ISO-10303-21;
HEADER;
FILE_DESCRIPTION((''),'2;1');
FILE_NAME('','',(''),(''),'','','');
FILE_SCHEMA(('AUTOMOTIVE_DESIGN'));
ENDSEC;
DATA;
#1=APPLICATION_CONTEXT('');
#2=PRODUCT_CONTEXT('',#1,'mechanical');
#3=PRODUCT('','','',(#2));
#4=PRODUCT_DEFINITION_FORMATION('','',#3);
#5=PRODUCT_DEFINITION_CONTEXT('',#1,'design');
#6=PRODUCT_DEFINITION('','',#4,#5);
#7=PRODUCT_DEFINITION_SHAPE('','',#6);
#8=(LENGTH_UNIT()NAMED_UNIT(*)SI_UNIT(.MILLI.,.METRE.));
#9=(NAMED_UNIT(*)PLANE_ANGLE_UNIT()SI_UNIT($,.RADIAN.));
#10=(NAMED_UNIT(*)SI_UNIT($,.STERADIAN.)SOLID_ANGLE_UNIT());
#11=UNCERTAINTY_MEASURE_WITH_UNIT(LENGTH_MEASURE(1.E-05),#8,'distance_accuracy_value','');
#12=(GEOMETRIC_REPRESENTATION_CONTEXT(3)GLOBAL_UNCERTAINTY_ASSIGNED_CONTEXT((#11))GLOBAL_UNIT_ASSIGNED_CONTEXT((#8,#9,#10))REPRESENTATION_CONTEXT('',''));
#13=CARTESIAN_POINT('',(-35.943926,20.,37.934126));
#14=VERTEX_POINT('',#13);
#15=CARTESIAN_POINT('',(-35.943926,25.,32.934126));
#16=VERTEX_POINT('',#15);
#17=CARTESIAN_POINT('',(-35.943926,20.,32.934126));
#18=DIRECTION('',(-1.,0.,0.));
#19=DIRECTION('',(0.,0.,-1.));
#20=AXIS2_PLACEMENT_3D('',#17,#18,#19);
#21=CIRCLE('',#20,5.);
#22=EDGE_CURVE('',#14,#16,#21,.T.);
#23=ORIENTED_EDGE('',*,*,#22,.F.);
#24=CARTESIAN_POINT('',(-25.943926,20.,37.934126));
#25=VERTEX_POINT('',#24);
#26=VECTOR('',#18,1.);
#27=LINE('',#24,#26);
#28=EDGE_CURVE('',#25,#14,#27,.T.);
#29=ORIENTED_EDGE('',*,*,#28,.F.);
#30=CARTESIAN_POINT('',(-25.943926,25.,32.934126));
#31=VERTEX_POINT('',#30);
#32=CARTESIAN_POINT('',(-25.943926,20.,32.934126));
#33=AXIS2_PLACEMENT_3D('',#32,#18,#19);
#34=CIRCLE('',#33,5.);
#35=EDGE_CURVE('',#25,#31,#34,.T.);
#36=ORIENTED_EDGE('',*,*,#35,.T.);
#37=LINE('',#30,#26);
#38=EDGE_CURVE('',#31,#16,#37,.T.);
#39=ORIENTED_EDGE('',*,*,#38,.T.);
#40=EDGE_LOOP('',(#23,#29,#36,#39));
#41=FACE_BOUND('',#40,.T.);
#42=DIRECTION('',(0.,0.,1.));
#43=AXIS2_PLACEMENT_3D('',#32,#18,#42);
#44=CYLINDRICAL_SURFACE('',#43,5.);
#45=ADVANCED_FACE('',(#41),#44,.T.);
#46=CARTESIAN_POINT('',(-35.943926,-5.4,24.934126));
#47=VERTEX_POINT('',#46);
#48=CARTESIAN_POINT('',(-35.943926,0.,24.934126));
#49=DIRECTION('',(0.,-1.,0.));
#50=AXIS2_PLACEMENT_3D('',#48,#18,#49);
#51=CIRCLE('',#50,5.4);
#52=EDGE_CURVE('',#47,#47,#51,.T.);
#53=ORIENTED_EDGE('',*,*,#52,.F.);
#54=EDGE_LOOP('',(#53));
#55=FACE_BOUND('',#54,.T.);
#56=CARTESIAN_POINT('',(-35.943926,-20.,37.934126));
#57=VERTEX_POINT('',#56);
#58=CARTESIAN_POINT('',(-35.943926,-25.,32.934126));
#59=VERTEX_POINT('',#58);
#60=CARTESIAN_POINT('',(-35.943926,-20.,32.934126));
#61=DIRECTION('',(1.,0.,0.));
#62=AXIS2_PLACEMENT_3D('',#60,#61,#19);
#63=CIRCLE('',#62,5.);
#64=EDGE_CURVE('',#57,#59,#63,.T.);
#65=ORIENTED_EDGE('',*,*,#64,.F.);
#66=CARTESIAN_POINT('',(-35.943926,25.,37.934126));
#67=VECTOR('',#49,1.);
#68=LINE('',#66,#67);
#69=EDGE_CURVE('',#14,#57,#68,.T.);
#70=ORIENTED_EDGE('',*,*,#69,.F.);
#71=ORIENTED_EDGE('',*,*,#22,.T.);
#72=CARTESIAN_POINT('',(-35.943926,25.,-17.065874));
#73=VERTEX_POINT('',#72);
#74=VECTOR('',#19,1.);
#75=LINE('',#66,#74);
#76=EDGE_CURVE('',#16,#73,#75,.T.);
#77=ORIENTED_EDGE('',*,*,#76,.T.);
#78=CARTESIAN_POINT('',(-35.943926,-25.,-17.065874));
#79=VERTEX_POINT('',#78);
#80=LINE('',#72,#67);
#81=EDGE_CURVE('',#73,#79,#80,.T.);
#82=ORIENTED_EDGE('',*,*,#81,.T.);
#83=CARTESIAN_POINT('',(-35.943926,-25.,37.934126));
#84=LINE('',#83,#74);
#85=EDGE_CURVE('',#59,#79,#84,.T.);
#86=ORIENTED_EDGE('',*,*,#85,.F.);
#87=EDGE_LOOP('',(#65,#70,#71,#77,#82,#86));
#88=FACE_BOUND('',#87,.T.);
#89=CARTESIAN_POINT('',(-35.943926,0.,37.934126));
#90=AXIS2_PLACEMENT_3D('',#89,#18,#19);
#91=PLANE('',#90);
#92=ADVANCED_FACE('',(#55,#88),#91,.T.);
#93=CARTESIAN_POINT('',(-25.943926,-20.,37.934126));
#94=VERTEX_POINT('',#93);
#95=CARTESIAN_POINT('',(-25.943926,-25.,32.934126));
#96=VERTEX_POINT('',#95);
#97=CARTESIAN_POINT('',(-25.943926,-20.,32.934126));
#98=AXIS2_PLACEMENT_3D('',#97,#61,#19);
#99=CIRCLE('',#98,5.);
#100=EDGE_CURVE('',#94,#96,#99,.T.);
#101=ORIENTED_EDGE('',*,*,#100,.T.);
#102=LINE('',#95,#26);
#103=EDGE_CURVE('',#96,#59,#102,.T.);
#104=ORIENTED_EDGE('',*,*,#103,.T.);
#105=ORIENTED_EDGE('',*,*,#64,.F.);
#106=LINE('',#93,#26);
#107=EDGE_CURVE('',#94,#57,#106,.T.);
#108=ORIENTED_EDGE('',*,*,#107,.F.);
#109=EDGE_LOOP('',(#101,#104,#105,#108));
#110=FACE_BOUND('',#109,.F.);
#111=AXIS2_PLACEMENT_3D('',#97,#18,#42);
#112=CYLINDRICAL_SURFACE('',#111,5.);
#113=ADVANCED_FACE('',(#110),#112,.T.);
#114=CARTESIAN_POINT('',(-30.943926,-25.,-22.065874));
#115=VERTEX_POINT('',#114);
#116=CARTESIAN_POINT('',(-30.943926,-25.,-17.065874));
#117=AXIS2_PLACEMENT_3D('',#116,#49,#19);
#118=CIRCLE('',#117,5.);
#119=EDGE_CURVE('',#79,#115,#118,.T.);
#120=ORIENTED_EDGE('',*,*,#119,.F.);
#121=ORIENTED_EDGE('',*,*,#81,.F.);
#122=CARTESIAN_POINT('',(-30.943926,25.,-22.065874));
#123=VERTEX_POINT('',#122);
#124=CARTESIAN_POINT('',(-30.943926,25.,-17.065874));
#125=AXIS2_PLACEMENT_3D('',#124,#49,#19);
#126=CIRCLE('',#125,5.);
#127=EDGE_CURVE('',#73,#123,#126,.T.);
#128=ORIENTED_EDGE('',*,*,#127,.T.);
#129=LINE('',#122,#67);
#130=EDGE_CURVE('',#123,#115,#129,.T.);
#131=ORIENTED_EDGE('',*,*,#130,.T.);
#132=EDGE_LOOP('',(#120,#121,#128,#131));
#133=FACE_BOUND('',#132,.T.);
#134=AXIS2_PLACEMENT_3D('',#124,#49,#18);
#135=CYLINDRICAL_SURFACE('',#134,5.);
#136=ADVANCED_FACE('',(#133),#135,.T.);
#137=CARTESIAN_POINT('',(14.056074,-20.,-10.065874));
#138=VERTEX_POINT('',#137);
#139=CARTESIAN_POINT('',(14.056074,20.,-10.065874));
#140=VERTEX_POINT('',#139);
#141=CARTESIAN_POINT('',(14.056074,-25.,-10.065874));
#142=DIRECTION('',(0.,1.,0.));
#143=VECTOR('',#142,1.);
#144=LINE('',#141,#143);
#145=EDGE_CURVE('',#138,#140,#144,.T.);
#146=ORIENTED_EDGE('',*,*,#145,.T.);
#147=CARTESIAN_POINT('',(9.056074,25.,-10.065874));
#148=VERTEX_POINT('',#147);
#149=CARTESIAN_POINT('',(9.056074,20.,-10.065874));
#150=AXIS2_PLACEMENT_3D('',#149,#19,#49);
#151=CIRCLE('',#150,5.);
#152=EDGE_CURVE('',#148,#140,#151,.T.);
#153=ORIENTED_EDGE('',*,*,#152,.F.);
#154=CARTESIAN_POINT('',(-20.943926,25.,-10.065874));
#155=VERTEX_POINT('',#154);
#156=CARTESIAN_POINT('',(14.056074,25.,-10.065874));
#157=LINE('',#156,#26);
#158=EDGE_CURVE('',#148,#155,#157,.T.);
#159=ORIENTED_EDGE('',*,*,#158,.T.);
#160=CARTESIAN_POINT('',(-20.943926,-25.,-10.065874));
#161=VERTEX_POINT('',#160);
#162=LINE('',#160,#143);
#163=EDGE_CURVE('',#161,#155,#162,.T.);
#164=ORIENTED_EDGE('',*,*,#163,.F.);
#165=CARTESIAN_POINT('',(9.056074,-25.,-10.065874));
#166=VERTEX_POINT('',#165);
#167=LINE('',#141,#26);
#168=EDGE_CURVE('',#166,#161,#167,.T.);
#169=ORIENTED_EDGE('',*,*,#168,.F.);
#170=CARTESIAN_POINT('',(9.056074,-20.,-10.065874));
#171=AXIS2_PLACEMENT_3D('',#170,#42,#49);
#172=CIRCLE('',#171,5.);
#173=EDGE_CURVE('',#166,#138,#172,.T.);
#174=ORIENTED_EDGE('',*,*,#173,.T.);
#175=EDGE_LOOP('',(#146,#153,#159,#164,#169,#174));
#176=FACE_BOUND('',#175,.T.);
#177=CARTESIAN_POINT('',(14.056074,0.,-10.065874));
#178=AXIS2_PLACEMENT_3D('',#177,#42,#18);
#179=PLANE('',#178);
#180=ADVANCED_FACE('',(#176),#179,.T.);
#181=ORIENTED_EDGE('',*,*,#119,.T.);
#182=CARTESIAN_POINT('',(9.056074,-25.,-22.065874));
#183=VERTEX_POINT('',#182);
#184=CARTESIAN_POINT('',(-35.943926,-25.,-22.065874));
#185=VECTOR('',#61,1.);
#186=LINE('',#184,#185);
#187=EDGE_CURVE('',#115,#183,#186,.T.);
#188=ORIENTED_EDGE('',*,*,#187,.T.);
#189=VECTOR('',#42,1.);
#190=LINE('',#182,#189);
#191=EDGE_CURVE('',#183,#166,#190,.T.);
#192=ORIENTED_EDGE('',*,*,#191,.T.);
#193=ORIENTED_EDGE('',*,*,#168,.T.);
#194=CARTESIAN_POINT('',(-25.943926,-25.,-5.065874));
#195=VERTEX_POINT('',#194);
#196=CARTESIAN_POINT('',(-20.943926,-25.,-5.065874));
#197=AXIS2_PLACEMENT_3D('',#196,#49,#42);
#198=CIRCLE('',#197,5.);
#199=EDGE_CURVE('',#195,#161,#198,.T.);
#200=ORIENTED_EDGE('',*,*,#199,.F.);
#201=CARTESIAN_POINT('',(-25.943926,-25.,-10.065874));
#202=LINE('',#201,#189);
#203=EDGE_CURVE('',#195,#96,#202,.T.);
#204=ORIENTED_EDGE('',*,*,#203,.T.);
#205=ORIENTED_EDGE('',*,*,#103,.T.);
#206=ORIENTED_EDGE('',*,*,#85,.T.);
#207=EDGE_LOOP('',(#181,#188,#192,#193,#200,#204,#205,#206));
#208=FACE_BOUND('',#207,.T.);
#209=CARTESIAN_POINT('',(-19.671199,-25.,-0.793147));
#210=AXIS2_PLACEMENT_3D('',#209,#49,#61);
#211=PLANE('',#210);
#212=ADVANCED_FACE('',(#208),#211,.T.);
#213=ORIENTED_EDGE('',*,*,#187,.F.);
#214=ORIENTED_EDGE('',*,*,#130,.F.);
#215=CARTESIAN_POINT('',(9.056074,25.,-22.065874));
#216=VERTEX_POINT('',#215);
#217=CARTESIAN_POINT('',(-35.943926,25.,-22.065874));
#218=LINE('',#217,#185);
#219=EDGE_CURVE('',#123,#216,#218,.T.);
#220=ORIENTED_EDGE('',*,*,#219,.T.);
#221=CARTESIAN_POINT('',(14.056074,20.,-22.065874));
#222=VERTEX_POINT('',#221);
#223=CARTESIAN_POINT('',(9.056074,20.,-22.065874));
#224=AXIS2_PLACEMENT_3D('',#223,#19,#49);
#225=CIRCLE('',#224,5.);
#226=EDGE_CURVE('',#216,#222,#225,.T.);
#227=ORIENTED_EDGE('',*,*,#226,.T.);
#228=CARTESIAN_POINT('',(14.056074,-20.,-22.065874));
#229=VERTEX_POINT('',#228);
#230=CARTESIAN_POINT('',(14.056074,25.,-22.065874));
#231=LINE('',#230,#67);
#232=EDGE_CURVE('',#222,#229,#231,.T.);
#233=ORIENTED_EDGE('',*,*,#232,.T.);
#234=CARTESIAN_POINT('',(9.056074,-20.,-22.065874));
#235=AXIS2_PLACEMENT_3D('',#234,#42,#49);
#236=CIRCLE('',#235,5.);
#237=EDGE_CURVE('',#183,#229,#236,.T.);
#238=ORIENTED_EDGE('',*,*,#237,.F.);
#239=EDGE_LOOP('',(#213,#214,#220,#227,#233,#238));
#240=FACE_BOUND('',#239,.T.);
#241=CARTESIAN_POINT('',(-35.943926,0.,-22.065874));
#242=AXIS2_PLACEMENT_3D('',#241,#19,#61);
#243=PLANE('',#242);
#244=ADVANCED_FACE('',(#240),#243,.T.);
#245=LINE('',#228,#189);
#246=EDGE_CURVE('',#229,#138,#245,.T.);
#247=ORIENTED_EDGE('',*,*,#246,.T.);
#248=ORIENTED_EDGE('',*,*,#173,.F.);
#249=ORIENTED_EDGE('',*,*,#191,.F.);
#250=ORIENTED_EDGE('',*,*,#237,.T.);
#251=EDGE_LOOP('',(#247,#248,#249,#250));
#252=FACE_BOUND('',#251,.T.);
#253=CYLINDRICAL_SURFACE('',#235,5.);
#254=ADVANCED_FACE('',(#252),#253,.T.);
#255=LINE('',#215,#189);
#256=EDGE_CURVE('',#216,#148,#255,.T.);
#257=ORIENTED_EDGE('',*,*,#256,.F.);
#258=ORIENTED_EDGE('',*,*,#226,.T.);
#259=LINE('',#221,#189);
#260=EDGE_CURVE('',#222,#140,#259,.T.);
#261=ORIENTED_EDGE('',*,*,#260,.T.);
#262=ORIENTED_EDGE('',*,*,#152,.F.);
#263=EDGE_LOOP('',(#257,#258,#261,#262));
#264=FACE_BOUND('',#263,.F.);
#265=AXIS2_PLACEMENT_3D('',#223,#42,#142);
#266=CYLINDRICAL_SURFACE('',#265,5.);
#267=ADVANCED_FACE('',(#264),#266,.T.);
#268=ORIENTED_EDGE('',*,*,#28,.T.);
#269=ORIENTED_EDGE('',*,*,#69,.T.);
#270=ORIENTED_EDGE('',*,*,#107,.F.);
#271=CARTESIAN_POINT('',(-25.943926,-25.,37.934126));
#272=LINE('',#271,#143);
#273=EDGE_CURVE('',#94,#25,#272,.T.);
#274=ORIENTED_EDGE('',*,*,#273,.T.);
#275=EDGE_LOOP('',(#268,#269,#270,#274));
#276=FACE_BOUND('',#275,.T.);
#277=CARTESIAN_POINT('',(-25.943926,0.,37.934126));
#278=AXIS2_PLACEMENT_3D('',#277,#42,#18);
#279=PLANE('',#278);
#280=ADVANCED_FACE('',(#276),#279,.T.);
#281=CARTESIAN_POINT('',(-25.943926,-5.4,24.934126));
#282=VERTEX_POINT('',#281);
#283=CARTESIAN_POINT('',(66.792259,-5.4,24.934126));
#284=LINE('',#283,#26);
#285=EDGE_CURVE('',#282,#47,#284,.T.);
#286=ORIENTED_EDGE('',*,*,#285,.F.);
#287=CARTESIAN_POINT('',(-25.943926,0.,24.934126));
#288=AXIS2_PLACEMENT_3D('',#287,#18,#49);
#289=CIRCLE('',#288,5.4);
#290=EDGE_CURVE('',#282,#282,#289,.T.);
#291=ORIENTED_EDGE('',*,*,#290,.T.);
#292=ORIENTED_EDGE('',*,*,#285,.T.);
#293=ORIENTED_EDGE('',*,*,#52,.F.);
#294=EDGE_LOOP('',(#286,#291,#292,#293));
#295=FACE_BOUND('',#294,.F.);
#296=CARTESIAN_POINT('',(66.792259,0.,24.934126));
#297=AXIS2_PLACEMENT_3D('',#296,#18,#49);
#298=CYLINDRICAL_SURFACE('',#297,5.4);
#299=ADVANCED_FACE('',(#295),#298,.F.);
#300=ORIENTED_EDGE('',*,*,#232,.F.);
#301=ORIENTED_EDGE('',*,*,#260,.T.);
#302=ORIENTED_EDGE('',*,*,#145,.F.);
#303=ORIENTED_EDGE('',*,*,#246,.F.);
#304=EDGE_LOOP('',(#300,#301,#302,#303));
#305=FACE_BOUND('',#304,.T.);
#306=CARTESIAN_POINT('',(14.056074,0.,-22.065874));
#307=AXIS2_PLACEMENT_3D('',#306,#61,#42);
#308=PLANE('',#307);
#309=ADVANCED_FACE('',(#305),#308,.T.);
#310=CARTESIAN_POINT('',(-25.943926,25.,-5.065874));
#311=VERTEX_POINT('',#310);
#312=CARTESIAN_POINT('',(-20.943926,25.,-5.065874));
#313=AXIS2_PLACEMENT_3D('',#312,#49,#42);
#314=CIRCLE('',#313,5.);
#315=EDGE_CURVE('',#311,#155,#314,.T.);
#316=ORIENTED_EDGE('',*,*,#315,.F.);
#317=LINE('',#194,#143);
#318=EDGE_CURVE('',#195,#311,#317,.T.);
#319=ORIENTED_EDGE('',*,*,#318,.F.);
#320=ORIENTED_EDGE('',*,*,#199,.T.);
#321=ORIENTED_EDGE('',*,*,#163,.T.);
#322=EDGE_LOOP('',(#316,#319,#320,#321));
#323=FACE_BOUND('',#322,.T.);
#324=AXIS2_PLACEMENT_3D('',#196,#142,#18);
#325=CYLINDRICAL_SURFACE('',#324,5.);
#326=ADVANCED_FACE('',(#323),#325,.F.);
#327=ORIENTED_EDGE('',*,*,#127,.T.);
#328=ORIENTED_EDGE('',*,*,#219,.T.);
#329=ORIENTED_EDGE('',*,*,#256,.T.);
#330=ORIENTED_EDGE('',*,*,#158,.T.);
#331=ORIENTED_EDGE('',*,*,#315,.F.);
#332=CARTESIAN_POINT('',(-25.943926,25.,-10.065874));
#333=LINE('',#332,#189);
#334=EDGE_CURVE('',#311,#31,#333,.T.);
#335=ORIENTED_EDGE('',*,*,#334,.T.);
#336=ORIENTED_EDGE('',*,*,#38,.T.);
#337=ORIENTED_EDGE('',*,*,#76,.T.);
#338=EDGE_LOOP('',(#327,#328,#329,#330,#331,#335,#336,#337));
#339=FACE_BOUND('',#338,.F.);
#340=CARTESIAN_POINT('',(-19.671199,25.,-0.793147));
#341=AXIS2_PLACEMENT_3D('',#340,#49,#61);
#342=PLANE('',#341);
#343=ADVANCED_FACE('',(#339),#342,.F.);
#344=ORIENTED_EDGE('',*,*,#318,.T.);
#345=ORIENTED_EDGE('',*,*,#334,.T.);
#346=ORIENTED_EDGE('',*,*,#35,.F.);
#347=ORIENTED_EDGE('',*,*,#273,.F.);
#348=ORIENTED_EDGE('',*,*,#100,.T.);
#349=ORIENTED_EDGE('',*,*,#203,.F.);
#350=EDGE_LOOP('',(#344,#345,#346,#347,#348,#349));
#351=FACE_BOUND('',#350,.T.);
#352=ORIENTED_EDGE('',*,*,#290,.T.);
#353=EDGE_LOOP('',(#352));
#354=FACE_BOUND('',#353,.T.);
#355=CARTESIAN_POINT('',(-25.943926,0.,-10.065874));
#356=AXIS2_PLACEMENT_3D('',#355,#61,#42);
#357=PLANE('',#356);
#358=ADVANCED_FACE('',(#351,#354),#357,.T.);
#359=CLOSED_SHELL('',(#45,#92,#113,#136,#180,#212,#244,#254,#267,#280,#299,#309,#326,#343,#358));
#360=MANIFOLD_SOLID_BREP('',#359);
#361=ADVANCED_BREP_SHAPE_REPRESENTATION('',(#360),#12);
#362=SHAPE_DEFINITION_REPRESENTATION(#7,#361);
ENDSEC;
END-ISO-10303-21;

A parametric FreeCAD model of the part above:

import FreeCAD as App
import Part
import Sketcher

V = App.Vector


def edges_at(feature, points):
    """Names of the edges that pass closest to the given points."""
    edges = feature.Shape.Edges
    near = lambda p: min(range(len(edges)), key=lambda i: edges[i].distToShape(Part.Vertex(*p))[0])
    return sorted({f"Edge{near(p) + 1}" for p in points})

doc = App.newDocument("Part")
body = doc.addObject("PartDesign::Body", "Body")

# Sketch on XZ plane
sketch1 = doc.addObject("Sketcher::SketchObject", "Sketch")
body.addObject(sketch1)
sketch1.AttachmentSupport = (doc.XZ_Plane, [""])
sketch1.MapMode = "FlatFace"
sketch1.addGeometry([
    Part.LineSegment(V(-26, 38, 0), V(-36, 38, 0)),  # 0
    Part.LineSegment(V(-36, 38, 0), V(-36, -22, 0)),  # 1
    Part.LineSegment(V(-36, -22, 0), V(14, -22, 0)),  # 2
    Part.LineSegment(V(14, -22, 0), V(14, -10, 0)),  # 3
    Part.LineSegment(V(14, -10, 0), V(-26, -10, 0)),  # 4
    Part.LineSegment(V(-26, -10, 0), V(-26, 38, 0)),  # 5
], False)
sketch1.addConstraint([
    Sketcher.Constraint("Coincident", 0, 2, 1, 1),
    Sketcher.Constraint("Coincident", 1, 2, 2, 1),
    Sketcher.Constraint("Coincident", 2, 2, 3, 1),
    Sketcher.Constraint("Coincident", 3, 2, 4, 1),
    Sketcher.Constraint("Coincident", 4, 2, 5, 1),
    Sketcher.Constraint("Coincident", 5, 2, 0, 1),
    Sketcher.Constraint("Horizontal", 0),
    Sketcher.Constraint("Vertical", 1),
    Sketcher.Constraint("Horizontal", 2),
    Sketcher.Constraint("Vertical", 3),
    Sketcher.Constraint("Horizontal", 4),
    Sketcher.Constraint("Vertical", 5),
    Sketcher.Constraint("DistanceX", 0, 2, 0, 1, 10.0),
    Sketcher.Constraint("DistanceX", 2, 1, 2, 2, 50.0),
    Sketcher.Constraint("DistanceY", 1, 2, 1, 1, 60.0),
    Sketcher.Constraint("DistanceY", 3, 1, 3, 2, 12.0),
    Sketcher.Constraint("DistanceX", 0, 2, -1, 1, 35.943926),
    Sketcher.Constraint("DistanceY", -1, 1, 0, 2, 37.934126),
])
pad1 = doc.addObject("PartDesign::Pad", "Pad")
body.addObject(pad1)
pad1.Profile = sketch1
pad1.Length = 50
pad1.Midplane = True

# Sketch on YZ plane
sketch2 = doc.addObject("Sketcher::SketchObject", "Sketch001")
body.addObject(sketch2)
sketch2.AttachmentSupport = (doc.YZ_Plane, [""])
sketch2.MapMode = "FlatFace"
sketch2.AttachmentOffset = App.Placement(V(0, 0, -25.943926), App.Rotation())
sketch2.addGeometry(Part.Circle(V(0, 25, 0), V(0, 0, 1), 5), False)
sketch2.addConstraint([
    Sketcher.Constraint("PointOnObject", 0, 3, -2),
    Sketcher.Constraint("Diameter", 0, 10.8),
    Sketcher.Constraint("DistanceY", -1, 1, 0, 3, 24.934126),
])
doc.recompute()
hole = doc.addObject("PartDesign::Hole", "Hole")
body.addObject(hole)
hole.Profile = sketch2
hole.ThreadType = "None"
hole.Diameter = 10.8
hole.DepthType = "ThroughAll"
doc.recompute()

fillet = doc.addObject("PartDesign::Fillet", "Fillet")
body.addObject(fillet)
fillet.Base = (hole, edges_at(hole, [
    (-30.944, -25, 37.934),
    (-30.944, 25, 37.934),
    (14.056, -25, -16.066),
    (14.056, 25, -16.066),
    (-35.944, 0, -22.066),
    (-25.944, 0, -10.066),
]))
fillet.Radius = 5

doc.recompute()
